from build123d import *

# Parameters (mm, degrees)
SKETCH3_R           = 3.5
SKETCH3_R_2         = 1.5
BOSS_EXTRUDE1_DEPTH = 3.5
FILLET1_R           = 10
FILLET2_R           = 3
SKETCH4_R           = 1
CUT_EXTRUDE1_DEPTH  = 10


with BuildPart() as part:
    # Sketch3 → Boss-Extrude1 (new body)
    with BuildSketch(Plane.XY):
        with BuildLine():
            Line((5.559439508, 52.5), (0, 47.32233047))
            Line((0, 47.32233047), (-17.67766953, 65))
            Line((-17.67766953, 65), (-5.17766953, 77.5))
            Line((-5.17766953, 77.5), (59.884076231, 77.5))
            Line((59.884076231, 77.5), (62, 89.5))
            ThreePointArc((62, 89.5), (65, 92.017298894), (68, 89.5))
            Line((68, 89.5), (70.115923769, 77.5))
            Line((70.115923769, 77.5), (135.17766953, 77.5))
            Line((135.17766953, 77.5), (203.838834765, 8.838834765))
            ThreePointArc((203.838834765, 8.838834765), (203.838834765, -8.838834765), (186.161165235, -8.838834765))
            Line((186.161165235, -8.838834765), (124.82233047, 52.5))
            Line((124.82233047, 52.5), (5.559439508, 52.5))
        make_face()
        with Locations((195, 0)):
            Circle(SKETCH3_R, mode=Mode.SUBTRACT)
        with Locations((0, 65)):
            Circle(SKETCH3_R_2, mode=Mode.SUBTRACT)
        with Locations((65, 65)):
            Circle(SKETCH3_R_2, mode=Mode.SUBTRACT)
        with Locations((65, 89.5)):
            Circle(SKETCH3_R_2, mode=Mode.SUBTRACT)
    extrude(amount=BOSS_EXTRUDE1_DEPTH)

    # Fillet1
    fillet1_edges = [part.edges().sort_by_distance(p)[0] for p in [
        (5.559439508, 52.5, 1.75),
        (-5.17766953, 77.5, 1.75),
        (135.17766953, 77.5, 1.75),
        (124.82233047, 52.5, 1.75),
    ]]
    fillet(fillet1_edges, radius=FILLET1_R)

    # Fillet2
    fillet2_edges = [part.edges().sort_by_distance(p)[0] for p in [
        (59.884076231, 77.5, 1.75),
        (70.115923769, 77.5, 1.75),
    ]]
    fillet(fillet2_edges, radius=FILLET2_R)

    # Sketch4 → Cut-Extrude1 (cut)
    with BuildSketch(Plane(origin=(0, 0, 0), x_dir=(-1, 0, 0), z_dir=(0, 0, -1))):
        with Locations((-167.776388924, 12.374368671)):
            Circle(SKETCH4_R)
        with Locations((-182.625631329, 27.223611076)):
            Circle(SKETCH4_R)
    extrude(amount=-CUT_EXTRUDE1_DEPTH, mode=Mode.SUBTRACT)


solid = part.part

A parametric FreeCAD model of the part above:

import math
import FreeCAD as App
import Part
import Sketcher
Q = App.Units.Quantity


def edges_at(feature, points):
    """Names of the edges that pass closest to the given points."""
    edges = feature.Shape.Edges
    near = lambda p: min(range(len(edges)), key=lambda i: edges[i].distToShape(Part.Vertex(*p))[0])
    return sorted({f"Edge{near(p) + 1}" for p in points})

doc = App.newDocument("Part")
body = doc.addObject("PartDesign::Body", "Body")

sketch1 = doc.addObject("Sketcher::SketchObject", "Sketch")
body.addObject(sketch1)
sketch1.AttachmentSupport = (doc.XY_Plane, [""])
sketch1.MapMode = "FlatFace"
sketch1.addGeometry([
    Part.LineSegment(App.Vector(0, 47.3, 0), App.Vector(5.6, 52.5, 0)),
    Part.LineSegment(App.Vector(5.6, 52.5, 0), App.Vector(124.8, 52.5, 0)),
    Part.LineSegment(App.Vector(124.8, 52.5, 0), App.Vector(186.2, -8.8, 0)),
    Part.ArcOfCircle(Part.Circle(App.Vector(195, 0, 0), App.Vector(0, 0, 1), 12.5), math.radians(-135), math.radians(45)),
    Part.LineSegment(App.Vector(203.8, 8.8, 0), App.Vector(135.2, 77.5, 0)),
    Part.LineSegment(App.Vector(135.2, 77.5, 0), App.Vector(70.1, 77.5, 0)),
    Part.LineSegment(App.Vector(70.1, 77.5, 0), App.Vector(68, 89.5, 0)),
    Part.ArcOfCircle(Part.Circle(App.Vector(65, 89, 0), App.Vector(0, 0, 1), 3), math.radians(10), math.radians(170)),
    Part.LineSegment(App.Vector(62, 89.5, 0), App.Vector(59.9, 77.5, 0)),
    Part.LineSegment(App.Vector(59.9, 77.5, 0), App.Vector(-5.2, 77.5, 0)),
    Part.LineSegment(App.Vector(-5.2, 77.5, 0), App.Vector(-17.7, 65, 0)),
    Part.LineSegment(App.Vector(-17.7, 65, 0), App.Vector(0, 47.3, 0)),
    Part.Circle(App.Vector(195, 0, 0), App.Vector(0, 0, 1), 3.5),
    Part.Circle(App.Vector(65, 65, 0), App.Vector(0, 0, 1), 1.5),
    Part.Circle(App.Vector(0, 65, 0), App.Vector(0, 0, 1), 1.5),
    Part.Circle(App.Vector(65, 89.5, 0), App.Vector(0, 0, 1), 1.5),
], False)
sketch1.addConstraint([
    Sketcher.Constraint("Coincident", 0, 2, 1, 1),
    Sketcher.Constraint("Coincident", 1, 2, 2, 1),
    Sketcher.Constraint("Tangent", 2, 2, 3, 1),
    Sketcher.Constraint("Tangent", 3, 2, 4, 1),
    Sketcher.Constraint("Coincident", 4, 2, 5, 1),
    Sketcher.Constraint("Coincident", 5, 2, 6, 1),
    Sketcher.Constraint("Tangent", 6, 2, 7, 1),
    Sketcher.Constraint("Tangent", 7, 2, 8, 1),
    Sketcher.Constraint("Coincident", 8, 2, 9, 1),
    Sketcher.Constraint("Coincident", 9, 2, 10, 1),
    Sketcher.Constraint("Coincident", 10, 2, 11, 1),
    Sketcher.Constraint("Coincident", 11, 2, 0, 1),
    Sketcher.Constraint("Horizontal", 1),
    Sketcher.Constraint("Horizontal", 5),
    Sketcher.Constraint("Horizontal", 9),
    Sketcher.Constraint("Coincident", 12, 3, 3, 3),
    Sketcher.Constraint("Equal", 13, 14),
    Sketcher.Constraint("Equal", 14, 15),
    Sketcher.Constraint("PointOnObject", 3, 3, -1),
    Sketcher.Constraint("PointOnObject", 14, 3, -2),
    Sketcher.Constraint("PointOnObject", 11, 2, -2),
    Sketcher.Constraint("Parallel", 2, 4),
    Sketcher.Constraint("Perpendicular", 4, 10),
    Sketcher.Constraint("Perpendicular", 10, 11),
    Sketcher.Constraint("Horizontal", 13, 3, 14, 3),
    Sketcher.Constraint("Horizontal", 15, 3, 6, 2),
    Sketcher.Constraint("Horizontal", 6, 2, 7, 2),
    Sketcher.Constraint("Horizontal", 5, 2, 8, 2),
    Sketcher.Constraint("Horizontal", 14, 3, 10, 2),
    Sketcher.Constraint("Vertical", 7, 3, 13, 3),
    Sketcher.Constraint("Vertical", 13, 3, 15, 3),
    Sketcher.Constraint("Equal", 5, 9),
    Sketcher.Constraint("Diameter", 12, Q("7 mm")),
    Sketcher.Constraint("Diameter", 13, Q("3 mm")),
    Sketcher.Constraint("Radius", 3, Q("12.5 mm")),
    Sketcher.Constraint("Angle", 2, Q("-45 deg")),
    Sketcher.Constraint("Angle", 6, Q("100 deg")),
    Sketcher.Constraint("Distance", 11, Q("25 mm")),
    Sketcher.Constraint("DistanceX", -1, 1, 3, 3, Q("195 mm")),
    Sketcher.Constraint("DistanceX", -1, 1, 7, 3, Q("65 mm")),
    Sketcher.Constraint("DistanceX", -1, 1, 6, 2, Q("68 mm")),
    Sketcher.Constraint("DistanceY", 0, 2, 15, 3, Q("37 mm")),
    Sketcher.Constraint("DistanceY", 1, 2, 4, 2, Q("25 mm")),
    Sketcher.Constraint("DistanceY", -1, 1, 15, 3, Q("89.5 mm")),
    Sketcher.Constraint("DistanceX", 1, 1, 1, 2, Q("119.262891 mm")),
])
pad1 = doc.addObject("PartDesign::Pad", "Pad")
body.addObject(pad1)
pad1.Profile = sketch1
pad1.Length = 3.5
doc.recompute()

fillet = doc.addObject("PartDesign::Fillet", "Fillet")
body.addObject(fillet)
fillet.Base = (pad1, edges_at(pad1, [
    (5.559, 52.5, 1.75),
    (-5.178, 77.5, 1.75),
    (135.178, 77.5, 1.75),
    (124.822, 52.5, 1.75),
]))
fillet.Radius = 10
doc.recompute()

fillet2 = doc.addObject("PartDesign::Fillet", "Fillet001")
body.addObject(fillet2)
fillet2.Base = (fillet, edges_at(fillet, [(59.884, 77.5, 1.75), (70.116, 77.5, 1.75)]))
fillet2.Radius = 3

sketch2 = doc.addObject("Sketcher::SketchObject", "Sketch001")
body.addObject(sketch2)
sketch2.AttachmentSupport = (doc.XY_Plane, [""])
sketch2.MapMode = "FlatFace"
sketch2.addGeometry([
    Part.Circle(App.Vector(167.8, 12.4, 0), App.Vector(0, 0, 1), 1),
    Part.Circle(App.Vector(182.6, 27.2, 0), App.Vector(0, 0, 1), 1),
], False)
sketch2.addConstraint([
    Sketcher.Constraint("Equal", 0, 1),
    Sketcher.Constraint("Diameter", 0, Q("2 mm")),
    Sketcher.Constraint("DistanceX", -1, 1, 0, 3, Q("167.776389 mm")),
    Sketcher.Constraint("DistanceY", -1, 1, 0, 3, Q("12.374369 mm")),
    Sketcher.Constraint("DistanceX", -1, 1, 1, 3, Q("182.625631 mm")),
    Sketcher.Constraint("DistanceY", -1, 1, 1, 3, Q("27.223611 mm")),
])
pocket1 = doc.addObject("PartDesign::Pocket", "Pocket")
body.addObject(pocket1)
pocket1.Profile = sketch2
pocket1.Length = 10
pocket1.Reversed = True

doc.recompute()
